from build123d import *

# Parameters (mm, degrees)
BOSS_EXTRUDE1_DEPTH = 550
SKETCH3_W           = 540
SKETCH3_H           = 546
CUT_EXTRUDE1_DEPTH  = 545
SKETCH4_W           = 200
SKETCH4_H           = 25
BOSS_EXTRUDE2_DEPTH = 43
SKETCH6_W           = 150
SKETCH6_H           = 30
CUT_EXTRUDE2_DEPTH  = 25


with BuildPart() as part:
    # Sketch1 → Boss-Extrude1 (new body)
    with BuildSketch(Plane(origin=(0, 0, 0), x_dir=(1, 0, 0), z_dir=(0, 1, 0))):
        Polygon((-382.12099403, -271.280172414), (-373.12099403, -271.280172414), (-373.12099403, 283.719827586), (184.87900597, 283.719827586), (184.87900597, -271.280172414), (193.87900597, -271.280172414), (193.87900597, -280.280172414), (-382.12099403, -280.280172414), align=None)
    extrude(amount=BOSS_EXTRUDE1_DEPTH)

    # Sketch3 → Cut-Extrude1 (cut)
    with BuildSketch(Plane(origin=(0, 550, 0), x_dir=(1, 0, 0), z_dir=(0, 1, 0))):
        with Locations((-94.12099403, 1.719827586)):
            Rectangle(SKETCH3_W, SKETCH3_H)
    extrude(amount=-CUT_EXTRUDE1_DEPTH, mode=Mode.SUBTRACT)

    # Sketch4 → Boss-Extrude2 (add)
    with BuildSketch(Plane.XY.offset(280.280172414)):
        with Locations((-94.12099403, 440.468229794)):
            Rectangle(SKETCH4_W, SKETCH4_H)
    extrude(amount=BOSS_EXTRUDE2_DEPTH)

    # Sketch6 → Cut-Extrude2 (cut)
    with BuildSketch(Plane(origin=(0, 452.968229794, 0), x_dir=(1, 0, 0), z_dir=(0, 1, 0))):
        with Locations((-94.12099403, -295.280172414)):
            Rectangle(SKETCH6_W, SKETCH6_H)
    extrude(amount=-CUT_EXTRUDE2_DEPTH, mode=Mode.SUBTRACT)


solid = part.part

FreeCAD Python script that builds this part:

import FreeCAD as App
import Part
import Sketcher
from FreeCAD import Vector


def add_polygon(sketch, points):
    """Adds a closed chain of lines whose ends are joined by coincident constraints."""
    first, n = sketch.GeometryCount, len(points)
    for a, b in zip(points, points[1:] + points[:1]):
        sketch.addGeometry(Part.LineSegment(App.Vector(*a, 0), App.Vector(*b, 0)), False)
    for i in range(n):
        sketch.addConstraint(Sketcher.Constraint("Coincident", first + i, 2, first + (i + 1) % n, 1))

doc = App.newDocument("Part")
body = doc.addObject("PartDesign::Body", "Body")

# Sketch on XZ plane
sketch1 = body.newObject("Sketcher::SketchObject", "Sketch")
sketch1.AttachmentSupport = (doc.getObject("XZ_Plane"), [""])
sketch1.MapMode = "FlatFace"
add_polygon(sketch1, [(-373, 271), (-382, 271), (-382, 280), (194, 280), (194, 271), (185, 271), (185, -284), (-373, -284)])  # lines 0-7
sketch1.addConstraint(Sketcher.Constraint("Horizontal", 0))
sketch1.addConstraint(Sketcher.Constraint("Vertical", 1))
sketch1.addConstraint(Sketcher.Constraint("Horizontal", 2))
sketch1.addConstraint(Sketcher.Constraint("Vertical", 3))
sketch1.addConstraint(Sketcher.Constraint("Horizontal", 4))
sketch1.addConstraint(Sketcher.Constraint("Vertical", 5))
sketch1.addConstraint(Sketcher.Constraint("Horizontal", 6))
sketch1.addConstraint(Sketcher.Constraint("Vertical", 7))
sketch1.addConstraint(Sketcher.Constraint("Horizontal", 0, 2, 3, 2))
sketch1.addConstraint(Sketcher.Constraint("Equal", 0, 4))
sketch1.addConstraint(Sketcher.Constraint("Equal", 4, 1))
sketch1.addConstraint(Sketcher.Constraint("DistanceX", 0, 2, 0, 1, 9.0))
sketch1.addConstraint(Sketcher.Constraint("DistanceX", 2, 1, 2, 2, 576.0))
sketch1.addConstraint(Sketcher.Constraint("DistanceY", 5, 2, 5, 1, 555.0))
sketch1.addConstraint(Sketcher.Constraint("DistanceX", 0, 2, -1, 1, 382.120994))
sketch1.addConstraint(Sketcher.Constraint("DistanceY", -1, 1, 0, 2, 271.280172))
pad1 = body.newObject("PartDesign::Pad", "Pad")
pad1.Profile = sketch1
pad1.Length = 550
pad1.Reversed = True

# Sketch on XZ plane
sketch2 = body.newObject("Sketcher::SketchObject", "Sketch001")
sketch2.AttachmentSupport = (doc.getObject("XZ_Plane"), [""])
sketch2.MapMode = "FlatFace"
sketch2.AttachmentOffset = App.Placement(Vector(0, 0, -550), App.Rotation())
add_polygon(sketch2, [(-364, -275), (-364, 271), (176, 271), (176, -275)])  # lines 0-3
sketch2.addConstraint(Sketcher.Constraint("Vertical", 0))
sketch2.addConstraint(Sketcher.Constraint("Horizontal", 1))
sketch2.addConstraint(Sketcher.Constraint("Vertical", 2))
sketch2.addConstraint(Sketcher.Constraint("Horizontal", 3))
sketch2.addConstraint(Sketcher.Constraint("DistanceX", 1, 1, 1, 2, 540.0))
sketch2.addConstraint(Sketcher.Constraint("DistanceY", 0, 1, 0, 2, 546.0))
sketch2.addConstraint(Sketcher.Constraint("DistanceX", 0, 2, -1, 1, 364.120994))
sketch2.addConstraint(Sketcher.Constraint("DistanceY", -1, 1, 0, 2, 271.280172))
pocket1 = body.newObject("PartDesign::Pocket", "Pocket")
pocket1.Profile = sketch2
pocket1.Length = 545
pocket1.Reversed = True

# Sketch on XY plane
sketch3 = body.newObject("Sketcher::SketchObject", "Sketch002")
sketch3.AttachmentSupport = (doc.getObject("XY_Plane"), [""])
sketch3.MapMode = "FlatFace"
sketch3.AttachmentOffset = App.Placement(Vector(0, 0, 280.280172), App.Rotation())
add_polygon(sketch3, [(-194, 453), (-194, 428), (6, 428), (6, 453)])  # lines 0-3
sketch3.addConstraint(Sketcher.Constraint("Vertical", 0))
sketch3.addConstraint(Sketcher.Constraint("Horizontal", 1))
sketch3.addConstraint(Sketcher.Constraint("Vertical", 2))
sketch3.addConstraint(Sketcher.Constraint("Horizontal", 3))
sketch3.addConstraint(Sketcher.Constraint("DistanceX", 1, 1, 1, 2, 200.0))
sketch3.addConstraint(Sketcher.Constraint("DistanceY", 0, 2, 0, 1, 25.0))
sketch3.addConstraint(Sketcher.Constraint("DistanceY", -1, 1, 0, 2, 427.96823))
sketch3.addConstraint(Sketcher.Constraint("DistanceX", 0, 2, -1, 1, 194.120994))
pad2 = body.newObject("PartDesign::Pad", "Pad001")
pad2.Profile = sketch3
pad2.Length = 43

# Sketch on XZ plane
sketch4 = body.newObject("Sketcher::SketchObject", "Sketch003")
sketch4.AttachmentSupport = (doc.getObject("XZ_Plane"), [""])
sketch4.MapMode = "FlatFace"
sketch4.AttachmentOffset = App.Placement(Vector(0, 0, -452.96823), App.Rotation())
add_polygon(sketch4, [(-169, 280), (-169, 310), (-19, 310), (-19, 280)])  # lines 0-3
sketch4.addConstraint(Sketcher.Constraint("Vertical", 0))
sketch4.addConstraint(Sketcher.Constraint("Horizontal", 1))
sketch4.addConstraint(Sketcher.Constraint("Vertical", 2))
sketch4.addConstraint(Sketcher.Constraint("Horizontal", 3))
sketch4.addConstraint(Sketcher.Constraint("DistanceX", 1, 1, 1, 2, 150.0))
sketch4.addConstraint(Sketcher.Constraint("DistanceY", 0, 1, 0, 2, 30.0))
sketch4.addConstraint(Sketcher.Constraint("DistanceX", 0, 2, -1, 1, 169.120994))
sketch4.addConstraint(Sketcher.Constraint("DistanceY", -1, 1, 0, 2, 310.280172))
pocket2 = body.newObject("PartDesign::Pocket", "Pocket001")
pocket2.Profile = sketch4
pocket2.Length = 25
pocket2.Reversed = True

doc.recompute()
